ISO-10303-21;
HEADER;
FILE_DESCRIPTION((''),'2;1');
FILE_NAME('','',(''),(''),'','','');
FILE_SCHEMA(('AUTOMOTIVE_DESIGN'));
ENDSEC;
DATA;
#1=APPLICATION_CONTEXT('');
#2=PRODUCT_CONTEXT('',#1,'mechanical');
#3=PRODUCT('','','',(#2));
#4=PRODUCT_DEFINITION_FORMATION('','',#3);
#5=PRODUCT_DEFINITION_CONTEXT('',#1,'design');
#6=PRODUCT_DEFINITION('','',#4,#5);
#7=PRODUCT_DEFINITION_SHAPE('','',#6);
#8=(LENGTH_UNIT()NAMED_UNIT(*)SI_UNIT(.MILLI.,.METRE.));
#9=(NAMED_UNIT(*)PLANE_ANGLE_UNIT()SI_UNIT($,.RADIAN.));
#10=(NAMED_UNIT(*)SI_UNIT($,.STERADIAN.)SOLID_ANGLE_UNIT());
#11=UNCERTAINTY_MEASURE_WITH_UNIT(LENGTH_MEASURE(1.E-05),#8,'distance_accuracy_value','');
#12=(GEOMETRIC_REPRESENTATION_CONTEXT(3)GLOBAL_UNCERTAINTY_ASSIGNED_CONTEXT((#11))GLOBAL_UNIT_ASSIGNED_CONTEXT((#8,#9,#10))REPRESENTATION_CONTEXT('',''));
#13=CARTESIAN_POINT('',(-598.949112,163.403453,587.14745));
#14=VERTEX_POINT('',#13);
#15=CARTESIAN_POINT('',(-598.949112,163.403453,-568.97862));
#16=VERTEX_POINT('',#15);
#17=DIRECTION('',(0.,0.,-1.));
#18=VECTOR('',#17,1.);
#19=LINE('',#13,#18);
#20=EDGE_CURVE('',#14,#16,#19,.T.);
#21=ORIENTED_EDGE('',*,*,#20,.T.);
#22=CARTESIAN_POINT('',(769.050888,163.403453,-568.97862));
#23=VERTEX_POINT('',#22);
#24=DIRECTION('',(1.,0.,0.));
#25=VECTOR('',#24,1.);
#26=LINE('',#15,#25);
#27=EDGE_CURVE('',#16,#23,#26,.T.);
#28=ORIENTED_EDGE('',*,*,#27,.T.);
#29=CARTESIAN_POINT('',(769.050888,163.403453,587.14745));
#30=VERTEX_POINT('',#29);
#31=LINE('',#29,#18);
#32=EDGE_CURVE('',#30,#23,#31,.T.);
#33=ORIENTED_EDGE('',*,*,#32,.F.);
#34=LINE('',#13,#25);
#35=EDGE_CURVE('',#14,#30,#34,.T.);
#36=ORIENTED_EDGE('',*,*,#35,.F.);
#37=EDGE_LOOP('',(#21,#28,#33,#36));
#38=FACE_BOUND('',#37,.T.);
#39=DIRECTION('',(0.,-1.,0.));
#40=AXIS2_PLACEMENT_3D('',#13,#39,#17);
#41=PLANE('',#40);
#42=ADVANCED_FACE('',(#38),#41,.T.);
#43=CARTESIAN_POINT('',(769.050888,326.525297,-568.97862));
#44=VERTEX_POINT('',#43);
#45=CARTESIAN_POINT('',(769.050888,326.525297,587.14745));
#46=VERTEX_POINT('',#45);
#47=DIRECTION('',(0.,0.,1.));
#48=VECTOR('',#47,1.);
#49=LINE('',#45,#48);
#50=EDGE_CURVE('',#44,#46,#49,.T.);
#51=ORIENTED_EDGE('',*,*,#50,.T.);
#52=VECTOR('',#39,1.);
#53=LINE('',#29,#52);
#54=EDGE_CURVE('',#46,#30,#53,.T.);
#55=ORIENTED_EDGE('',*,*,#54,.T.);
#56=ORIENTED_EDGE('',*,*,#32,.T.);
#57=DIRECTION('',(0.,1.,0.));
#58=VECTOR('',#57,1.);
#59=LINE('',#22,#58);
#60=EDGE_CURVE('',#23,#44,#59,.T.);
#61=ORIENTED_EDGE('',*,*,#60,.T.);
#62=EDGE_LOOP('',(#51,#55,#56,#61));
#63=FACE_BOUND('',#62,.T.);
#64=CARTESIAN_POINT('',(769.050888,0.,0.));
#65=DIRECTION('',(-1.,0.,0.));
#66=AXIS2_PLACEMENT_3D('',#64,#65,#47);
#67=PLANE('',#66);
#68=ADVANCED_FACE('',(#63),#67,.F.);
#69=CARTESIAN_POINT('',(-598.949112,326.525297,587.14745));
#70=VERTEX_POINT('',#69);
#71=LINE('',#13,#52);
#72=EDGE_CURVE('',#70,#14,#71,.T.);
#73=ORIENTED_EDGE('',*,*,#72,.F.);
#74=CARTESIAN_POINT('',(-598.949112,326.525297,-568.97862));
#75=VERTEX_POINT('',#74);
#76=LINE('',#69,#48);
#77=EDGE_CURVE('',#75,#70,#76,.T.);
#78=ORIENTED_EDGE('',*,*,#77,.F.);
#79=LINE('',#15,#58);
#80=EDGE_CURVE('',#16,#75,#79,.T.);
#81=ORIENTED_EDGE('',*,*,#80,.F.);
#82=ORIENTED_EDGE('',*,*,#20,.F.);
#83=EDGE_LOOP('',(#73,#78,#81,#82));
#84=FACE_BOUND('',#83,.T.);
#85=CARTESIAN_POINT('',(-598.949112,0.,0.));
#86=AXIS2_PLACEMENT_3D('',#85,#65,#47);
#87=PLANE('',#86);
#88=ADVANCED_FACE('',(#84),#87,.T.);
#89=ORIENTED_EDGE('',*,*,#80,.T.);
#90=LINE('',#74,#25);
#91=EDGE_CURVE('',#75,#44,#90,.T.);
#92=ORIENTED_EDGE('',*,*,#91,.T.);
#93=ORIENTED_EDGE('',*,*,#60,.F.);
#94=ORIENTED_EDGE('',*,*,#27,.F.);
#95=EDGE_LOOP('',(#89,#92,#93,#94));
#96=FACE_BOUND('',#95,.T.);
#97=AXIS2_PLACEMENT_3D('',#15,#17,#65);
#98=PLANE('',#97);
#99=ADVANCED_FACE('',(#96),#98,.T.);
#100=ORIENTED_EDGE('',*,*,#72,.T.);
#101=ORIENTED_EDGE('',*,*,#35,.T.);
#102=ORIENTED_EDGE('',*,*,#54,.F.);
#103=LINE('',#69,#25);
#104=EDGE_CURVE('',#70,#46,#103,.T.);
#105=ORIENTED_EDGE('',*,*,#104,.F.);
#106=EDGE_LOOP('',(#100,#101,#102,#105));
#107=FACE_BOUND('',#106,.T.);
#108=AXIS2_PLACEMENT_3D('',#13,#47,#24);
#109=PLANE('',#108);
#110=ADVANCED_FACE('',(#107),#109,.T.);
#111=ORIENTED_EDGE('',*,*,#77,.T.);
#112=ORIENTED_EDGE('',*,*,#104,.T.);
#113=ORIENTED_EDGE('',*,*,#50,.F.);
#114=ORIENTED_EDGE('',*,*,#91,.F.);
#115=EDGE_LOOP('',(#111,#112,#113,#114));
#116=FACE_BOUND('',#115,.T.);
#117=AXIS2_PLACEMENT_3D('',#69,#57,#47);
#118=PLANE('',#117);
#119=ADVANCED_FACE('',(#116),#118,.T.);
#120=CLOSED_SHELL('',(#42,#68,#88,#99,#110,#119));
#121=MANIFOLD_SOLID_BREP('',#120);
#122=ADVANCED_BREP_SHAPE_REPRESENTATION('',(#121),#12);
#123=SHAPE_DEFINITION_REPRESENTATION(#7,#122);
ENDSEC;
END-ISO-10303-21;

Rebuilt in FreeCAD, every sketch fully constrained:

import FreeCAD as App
import Part
import Sketcher
from FreeCAD import Vector
Q = App.Units.Quantity

doc = App.newDocument("Part")
params = doc.addObject("Spreadsheet::Sheet", "Params")
for row, (alias, value) in enumerate([
    ("pad1_length", "776 mm"),
    ("pad1_length2", "592 mm"),
], start=1):
    params.set(f"A{row}", alias)
    params.set(f"B{row}", "=" + value)
    params.setAlias(f"B{row}", alias)

body = doc.addObject("PartDesign::Body", "Body")

sketch1 = doc.addObject("Sketcher::SketchObject", "Sketch")
body.addObject(sketch1)
sketch1.AttachmentSupport = (doc.YZ_Plane, [""])
sketch1.MapMode = "FlatFace"
sketch1.AttachmentOffset = App.Placement(Vector(0, 0, -6.949112), App.Rotation())
sketch1.addGeometry([
    Part.LineSegment(Vector(326.525297, 587.14745, 0), Vector(163.403453, 587.14745, 0)),
    Part.LineSegment(Vector(163.403453, 587.14745, 0), Vector(163.403453, -568.97862, 0)),
    Part.LineSegment(Vector(163.403453, -568.97862, 0), Vector(326.525297, -568.97862, 0)),
    Part.LineSegment(Vector(326.525297, -568.97862, 0), Vector(326.525297, 587.14745, 0)),
], False)
sketch1.addConstraint([
    Sketcher.Constraint("Coincident", 0, 2, 1, 1),
    Sketcher.Constraint("Coincident", 1, 2, 2, 1),
    Sketcher.Constraint("Coincident", 2, 2, 3, 1),
    Sketcher.Constraint("Coincident", 3, 2, 0, 1),
    Sketcher.Constraint("Horizontal", 0),
    Sketcher.Constraint("Vertical", 1),
    Sketcher.Constraint("Horizontal", 2),
    Sketcher.Constraint("Vertical", 3),
    Sketcher.Constraint("DistanceY", 1, 2, 1, 1, Q("1156.12607 mm")),
    Sketcher.Constraint("DistanceX", 0, 2, 0, 1, Q("163.121844 mm")),
    Sketcher.Constraint("DistanceY", -1, 1, 0, 2, Q("587.14745 mm")),
    Sketcher.Constraint("DistanceX", -1, 1, 0, 2, Q("163.403453 mm")),
])
pad1 = doc.addObject("PartDesign::Pad", "Pad")
body.addObject(pad1)
pad1.Profile = sketch1
pad1.Type = "TwoLengths"
pad1.setExpression("Length", "Params.pad1_length")
pad1.setExpression("Length2", "Params.pad1_length2")

doc.recompute()
